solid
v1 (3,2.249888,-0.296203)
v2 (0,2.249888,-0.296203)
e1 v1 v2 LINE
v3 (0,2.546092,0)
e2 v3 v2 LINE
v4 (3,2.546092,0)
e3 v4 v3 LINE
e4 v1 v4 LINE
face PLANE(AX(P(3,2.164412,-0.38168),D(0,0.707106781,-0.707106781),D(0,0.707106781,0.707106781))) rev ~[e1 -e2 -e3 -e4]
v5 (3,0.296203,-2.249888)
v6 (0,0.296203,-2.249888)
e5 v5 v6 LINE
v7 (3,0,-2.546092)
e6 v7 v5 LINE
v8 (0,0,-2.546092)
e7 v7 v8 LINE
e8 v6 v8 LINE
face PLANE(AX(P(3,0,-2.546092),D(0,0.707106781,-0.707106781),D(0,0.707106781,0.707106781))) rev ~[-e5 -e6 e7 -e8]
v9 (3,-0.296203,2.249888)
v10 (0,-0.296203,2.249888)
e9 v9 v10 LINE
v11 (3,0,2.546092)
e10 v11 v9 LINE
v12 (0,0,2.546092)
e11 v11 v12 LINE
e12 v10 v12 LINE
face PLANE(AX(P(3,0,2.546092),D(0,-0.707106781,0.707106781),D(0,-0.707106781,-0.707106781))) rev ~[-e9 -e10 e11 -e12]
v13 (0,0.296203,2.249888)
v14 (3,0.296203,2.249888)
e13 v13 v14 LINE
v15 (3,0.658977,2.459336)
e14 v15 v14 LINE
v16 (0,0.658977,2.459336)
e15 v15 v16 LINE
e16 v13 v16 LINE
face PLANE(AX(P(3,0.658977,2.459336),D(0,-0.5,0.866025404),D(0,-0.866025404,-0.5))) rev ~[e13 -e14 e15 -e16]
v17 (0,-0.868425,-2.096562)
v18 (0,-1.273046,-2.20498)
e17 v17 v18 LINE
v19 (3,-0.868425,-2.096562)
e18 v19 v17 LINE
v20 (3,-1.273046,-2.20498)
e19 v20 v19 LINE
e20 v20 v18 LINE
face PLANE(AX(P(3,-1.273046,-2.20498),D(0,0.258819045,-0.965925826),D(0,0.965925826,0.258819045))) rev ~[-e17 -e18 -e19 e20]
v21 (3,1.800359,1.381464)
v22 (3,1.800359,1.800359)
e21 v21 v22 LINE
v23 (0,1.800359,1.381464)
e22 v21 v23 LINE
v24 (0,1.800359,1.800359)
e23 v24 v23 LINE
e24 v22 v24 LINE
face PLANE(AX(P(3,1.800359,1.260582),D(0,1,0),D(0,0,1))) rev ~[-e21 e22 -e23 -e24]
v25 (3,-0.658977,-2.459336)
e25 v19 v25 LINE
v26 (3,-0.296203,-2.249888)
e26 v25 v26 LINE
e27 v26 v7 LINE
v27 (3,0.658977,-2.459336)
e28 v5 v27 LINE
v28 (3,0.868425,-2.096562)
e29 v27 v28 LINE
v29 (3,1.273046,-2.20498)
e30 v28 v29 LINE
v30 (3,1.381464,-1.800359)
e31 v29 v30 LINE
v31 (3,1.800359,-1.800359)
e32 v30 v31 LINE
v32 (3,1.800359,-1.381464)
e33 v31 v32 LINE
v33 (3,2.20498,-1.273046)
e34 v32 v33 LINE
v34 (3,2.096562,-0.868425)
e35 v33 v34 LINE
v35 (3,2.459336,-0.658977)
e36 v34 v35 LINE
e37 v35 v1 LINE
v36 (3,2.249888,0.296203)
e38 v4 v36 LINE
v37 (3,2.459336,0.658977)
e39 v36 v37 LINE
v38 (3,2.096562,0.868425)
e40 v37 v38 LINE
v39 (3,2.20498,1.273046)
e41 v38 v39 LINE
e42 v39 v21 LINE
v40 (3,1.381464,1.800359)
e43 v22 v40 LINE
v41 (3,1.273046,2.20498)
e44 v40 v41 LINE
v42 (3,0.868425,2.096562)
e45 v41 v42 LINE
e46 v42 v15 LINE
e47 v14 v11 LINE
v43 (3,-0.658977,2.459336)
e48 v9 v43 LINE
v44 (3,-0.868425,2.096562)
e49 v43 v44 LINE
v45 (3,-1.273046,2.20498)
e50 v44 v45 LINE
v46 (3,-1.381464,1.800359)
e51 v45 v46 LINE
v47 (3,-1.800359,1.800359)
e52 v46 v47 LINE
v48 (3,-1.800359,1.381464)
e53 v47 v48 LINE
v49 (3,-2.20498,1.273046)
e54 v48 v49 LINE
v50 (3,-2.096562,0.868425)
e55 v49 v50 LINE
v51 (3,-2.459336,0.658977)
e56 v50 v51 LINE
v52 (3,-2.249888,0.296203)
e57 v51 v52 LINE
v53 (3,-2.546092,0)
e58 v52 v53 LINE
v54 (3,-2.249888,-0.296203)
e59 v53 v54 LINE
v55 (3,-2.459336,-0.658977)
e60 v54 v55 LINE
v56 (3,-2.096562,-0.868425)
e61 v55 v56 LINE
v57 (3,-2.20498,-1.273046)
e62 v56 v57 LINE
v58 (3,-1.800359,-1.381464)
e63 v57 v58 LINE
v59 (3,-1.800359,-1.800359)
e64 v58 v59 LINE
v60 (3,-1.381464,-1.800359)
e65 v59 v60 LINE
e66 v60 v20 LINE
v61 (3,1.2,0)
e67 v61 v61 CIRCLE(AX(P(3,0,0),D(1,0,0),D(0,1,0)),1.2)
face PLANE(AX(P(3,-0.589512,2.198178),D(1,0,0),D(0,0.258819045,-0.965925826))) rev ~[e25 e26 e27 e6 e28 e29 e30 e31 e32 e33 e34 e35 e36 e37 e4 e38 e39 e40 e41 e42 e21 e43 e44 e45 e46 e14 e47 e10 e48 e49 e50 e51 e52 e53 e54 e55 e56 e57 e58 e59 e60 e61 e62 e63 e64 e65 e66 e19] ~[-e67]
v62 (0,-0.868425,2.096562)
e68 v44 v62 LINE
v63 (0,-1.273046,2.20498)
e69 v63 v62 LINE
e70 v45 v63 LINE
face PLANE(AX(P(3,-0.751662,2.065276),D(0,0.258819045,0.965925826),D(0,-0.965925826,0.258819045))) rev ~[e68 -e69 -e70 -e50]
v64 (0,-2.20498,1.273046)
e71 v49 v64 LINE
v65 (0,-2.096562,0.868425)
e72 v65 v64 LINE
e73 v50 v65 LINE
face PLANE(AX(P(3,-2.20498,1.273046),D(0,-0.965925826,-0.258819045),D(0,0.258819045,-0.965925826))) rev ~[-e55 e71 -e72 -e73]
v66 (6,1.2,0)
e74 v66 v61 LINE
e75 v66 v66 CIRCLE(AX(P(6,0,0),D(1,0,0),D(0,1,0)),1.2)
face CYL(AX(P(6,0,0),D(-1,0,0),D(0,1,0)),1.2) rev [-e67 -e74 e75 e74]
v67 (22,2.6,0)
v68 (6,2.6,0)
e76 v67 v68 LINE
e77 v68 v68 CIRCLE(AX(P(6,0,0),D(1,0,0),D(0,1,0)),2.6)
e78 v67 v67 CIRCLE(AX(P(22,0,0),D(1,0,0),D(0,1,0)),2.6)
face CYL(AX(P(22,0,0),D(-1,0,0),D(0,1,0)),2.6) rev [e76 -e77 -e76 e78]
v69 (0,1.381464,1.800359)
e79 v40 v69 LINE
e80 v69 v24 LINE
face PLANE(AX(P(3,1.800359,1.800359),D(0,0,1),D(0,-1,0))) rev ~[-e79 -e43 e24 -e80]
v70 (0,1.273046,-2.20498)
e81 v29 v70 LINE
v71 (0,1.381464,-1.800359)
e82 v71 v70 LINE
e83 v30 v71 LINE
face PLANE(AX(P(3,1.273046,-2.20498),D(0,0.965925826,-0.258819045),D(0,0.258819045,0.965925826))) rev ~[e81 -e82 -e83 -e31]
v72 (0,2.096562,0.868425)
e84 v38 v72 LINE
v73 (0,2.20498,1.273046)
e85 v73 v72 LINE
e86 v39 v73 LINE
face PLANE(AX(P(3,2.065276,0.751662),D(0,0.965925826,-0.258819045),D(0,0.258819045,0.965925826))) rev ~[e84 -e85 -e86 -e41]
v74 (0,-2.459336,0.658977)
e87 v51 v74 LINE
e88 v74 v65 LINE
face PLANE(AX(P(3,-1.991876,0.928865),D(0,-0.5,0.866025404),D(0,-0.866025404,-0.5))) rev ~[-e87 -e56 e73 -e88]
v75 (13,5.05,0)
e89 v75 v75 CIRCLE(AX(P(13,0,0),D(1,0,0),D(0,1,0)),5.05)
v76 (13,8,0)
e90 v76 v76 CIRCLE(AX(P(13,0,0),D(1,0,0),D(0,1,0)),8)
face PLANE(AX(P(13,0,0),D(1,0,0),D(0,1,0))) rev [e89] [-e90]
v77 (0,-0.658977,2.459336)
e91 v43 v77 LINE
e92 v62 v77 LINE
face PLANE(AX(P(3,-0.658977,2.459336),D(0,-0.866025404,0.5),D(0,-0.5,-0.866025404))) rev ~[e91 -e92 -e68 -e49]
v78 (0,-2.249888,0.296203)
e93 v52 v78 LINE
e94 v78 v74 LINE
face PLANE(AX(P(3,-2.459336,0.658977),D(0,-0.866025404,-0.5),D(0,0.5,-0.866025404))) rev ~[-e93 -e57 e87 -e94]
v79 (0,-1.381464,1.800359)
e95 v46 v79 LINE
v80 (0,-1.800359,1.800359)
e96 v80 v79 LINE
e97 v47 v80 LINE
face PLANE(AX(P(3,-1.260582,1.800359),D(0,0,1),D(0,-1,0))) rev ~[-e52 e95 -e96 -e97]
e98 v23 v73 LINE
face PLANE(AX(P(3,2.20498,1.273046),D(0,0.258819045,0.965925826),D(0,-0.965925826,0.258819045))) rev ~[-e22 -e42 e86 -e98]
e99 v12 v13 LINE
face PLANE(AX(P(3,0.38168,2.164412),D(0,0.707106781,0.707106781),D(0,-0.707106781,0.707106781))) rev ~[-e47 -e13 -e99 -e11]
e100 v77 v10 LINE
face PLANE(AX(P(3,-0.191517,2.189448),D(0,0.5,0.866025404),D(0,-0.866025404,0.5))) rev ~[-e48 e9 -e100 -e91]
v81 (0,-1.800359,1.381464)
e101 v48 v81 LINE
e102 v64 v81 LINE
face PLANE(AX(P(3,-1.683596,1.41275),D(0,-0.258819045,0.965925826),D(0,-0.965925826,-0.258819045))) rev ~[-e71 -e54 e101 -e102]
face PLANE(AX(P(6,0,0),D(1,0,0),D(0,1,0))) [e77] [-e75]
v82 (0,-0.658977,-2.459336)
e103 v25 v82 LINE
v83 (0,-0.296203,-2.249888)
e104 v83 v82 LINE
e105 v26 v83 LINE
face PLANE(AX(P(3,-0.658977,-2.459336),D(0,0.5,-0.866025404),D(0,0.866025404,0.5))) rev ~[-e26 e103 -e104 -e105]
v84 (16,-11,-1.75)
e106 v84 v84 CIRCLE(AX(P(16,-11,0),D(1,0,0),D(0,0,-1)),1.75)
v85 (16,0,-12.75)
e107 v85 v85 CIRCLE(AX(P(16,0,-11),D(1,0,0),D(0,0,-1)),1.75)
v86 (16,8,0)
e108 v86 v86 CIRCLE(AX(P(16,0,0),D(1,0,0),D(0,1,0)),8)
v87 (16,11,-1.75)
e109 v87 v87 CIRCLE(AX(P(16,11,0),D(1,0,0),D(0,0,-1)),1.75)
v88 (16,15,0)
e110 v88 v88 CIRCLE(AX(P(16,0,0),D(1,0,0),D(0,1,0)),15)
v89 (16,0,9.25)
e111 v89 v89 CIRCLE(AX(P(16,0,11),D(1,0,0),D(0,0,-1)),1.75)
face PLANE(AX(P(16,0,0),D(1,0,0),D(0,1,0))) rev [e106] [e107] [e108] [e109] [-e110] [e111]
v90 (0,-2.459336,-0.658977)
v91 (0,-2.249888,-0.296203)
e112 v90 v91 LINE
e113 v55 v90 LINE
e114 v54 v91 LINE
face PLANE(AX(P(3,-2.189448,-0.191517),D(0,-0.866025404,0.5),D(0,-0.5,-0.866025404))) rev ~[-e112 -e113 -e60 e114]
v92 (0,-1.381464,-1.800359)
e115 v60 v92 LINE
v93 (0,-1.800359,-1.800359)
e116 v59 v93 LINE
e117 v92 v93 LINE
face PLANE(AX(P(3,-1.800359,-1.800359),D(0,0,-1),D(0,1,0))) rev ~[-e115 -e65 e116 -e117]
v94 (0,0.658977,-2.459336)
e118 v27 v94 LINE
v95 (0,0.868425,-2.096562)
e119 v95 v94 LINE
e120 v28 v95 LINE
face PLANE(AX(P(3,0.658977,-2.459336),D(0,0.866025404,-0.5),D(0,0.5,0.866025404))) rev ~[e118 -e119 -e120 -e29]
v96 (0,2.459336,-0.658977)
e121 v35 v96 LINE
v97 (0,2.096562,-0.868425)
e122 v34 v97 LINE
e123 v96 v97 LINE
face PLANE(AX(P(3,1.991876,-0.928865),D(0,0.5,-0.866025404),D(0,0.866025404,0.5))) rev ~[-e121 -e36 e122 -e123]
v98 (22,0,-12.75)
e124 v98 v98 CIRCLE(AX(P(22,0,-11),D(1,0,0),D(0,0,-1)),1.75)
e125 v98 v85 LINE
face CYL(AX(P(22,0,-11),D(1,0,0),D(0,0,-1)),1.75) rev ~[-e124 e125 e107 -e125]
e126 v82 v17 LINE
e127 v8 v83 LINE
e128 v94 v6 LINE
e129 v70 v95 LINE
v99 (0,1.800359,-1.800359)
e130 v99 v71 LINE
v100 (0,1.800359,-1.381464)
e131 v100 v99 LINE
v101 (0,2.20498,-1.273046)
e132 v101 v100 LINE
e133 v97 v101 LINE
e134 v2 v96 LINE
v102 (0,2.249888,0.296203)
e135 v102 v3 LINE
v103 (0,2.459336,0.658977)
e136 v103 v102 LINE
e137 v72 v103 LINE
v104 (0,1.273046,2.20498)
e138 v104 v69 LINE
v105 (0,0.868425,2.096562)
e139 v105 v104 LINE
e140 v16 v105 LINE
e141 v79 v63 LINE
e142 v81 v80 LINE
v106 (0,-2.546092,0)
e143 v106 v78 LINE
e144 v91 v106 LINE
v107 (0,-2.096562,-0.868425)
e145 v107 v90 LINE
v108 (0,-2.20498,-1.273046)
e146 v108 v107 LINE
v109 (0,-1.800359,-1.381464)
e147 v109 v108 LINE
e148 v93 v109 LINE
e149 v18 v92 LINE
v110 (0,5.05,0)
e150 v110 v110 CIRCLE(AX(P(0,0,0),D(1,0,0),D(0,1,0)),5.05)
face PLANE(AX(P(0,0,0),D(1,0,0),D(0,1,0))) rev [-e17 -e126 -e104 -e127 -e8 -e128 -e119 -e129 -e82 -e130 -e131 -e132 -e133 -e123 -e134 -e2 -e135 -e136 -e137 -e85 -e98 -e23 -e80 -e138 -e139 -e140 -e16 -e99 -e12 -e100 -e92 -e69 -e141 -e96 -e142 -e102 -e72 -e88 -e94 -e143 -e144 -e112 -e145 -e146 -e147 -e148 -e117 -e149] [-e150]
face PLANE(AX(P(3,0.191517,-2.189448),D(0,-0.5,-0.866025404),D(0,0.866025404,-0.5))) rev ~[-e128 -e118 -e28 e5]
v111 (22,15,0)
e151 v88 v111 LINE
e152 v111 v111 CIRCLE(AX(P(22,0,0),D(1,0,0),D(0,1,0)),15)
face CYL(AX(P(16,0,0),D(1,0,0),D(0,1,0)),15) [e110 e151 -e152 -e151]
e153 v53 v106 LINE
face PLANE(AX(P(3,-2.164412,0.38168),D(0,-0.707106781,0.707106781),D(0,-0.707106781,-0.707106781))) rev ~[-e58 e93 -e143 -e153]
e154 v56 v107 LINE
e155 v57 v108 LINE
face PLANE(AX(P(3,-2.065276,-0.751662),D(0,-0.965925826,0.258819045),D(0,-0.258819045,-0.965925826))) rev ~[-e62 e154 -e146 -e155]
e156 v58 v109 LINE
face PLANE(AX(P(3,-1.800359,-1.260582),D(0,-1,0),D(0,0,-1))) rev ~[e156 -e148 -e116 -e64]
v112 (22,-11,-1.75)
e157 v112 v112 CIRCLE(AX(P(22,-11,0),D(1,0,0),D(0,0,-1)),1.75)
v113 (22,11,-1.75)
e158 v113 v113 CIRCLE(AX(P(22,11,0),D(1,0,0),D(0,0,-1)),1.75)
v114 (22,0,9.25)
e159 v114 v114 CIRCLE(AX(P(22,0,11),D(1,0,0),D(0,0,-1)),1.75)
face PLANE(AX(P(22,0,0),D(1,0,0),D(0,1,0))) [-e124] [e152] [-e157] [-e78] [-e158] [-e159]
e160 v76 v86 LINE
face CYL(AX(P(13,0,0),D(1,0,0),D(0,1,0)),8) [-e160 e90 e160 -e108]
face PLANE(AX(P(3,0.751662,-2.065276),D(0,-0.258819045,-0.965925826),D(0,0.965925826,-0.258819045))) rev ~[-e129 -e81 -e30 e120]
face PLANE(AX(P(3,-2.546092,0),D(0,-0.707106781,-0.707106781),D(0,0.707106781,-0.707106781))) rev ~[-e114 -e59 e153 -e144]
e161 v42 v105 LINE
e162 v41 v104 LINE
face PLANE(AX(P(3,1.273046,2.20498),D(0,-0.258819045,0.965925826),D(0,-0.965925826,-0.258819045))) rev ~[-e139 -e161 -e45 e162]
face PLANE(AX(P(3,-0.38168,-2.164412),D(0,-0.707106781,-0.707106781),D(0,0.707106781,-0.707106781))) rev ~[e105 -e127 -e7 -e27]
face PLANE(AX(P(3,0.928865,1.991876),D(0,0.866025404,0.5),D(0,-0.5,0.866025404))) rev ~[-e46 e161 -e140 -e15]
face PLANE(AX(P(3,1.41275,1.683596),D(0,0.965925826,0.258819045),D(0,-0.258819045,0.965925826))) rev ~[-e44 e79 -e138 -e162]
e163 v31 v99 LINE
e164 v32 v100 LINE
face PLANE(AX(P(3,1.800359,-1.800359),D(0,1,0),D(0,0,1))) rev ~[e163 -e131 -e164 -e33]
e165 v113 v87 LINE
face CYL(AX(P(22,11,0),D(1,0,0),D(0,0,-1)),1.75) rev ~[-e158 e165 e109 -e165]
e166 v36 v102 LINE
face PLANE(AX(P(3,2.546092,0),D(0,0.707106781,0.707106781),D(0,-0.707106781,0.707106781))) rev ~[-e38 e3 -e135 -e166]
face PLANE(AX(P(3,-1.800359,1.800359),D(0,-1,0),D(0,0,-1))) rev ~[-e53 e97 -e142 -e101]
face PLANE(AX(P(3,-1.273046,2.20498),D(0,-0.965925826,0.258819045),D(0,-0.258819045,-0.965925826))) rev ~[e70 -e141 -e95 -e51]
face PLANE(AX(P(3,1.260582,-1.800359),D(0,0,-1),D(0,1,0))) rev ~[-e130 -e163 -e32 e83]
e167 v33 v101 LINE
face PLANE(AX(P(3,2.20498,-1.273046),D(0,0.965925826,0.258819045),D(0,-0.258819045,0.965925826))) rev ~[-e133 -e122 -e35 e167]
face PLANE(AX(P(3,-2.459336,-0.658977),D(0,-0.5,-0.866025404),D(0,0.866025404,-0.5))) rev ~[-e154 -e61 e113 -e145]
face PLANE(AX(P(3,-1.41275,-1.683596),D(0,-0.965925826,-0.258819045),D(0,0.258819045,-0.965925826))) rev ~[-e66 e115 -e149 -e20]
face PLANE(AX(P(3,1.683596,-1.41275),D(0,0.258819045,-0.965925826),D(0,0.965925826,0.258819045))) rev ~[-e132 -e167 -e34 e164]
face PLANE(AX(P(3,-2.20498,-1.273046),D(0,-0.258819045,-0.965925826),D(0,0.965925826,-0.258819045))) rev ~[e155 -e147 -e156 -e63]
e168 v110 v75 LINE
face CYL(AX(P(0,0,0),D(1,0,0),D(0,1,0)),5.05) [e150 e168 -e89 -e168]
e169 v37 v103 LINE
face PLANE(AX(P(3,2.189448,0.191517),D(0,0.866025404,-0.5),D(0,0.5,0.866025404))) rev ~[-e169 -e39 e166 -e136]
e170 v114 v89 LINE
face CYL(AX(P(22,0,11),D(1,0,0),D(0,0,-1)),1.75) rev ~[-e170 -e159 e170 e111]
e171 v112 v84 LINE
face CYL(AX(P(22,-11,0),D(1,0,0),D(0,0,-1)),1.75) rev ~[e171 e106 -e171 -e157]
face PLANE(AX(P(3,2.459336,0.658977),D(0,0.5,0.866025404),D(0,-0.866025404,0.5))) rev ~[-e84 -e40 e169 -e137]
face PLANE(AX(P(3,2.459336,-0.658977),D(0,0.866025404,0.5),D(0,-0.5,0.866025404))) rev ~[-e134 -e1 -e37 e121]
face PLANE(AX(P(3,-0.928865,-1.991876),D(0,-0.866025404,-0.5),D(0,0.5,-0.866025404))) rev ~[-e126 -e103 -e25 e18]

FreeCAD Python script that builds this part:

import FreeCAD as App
import Part
import Sketcher
from FreeCAD import Vector
Q = App.Units.Quantity

doc = App.newDocument("Part")
body = doc.addObject("PartDesign::Body", "Body")

sketch1 = doc.addObject("Sketcher::SketchObject", "Sketch")
body.addObject(sketch1)
sketch1.AttachmentSupport = (doc.XY_Plane, [""])
sketch1.MapMode = "FlatFace"
sketch1.addGeometry([
    Part.LineSegment(Vector(0, 5, 0), Vector(0, 2.2, 0)),
    Part.LineSegment(Vector(0, 2.2, 0), Vector(3, 2.2, 0)),
    Part.LineSegment(Vector(3, 2.2, 0), Vector(3, 1.2, 0)),
    Part.LineSegment(Vector(3, 1.2, 0), Vector(6, 1.2, 0)),
    Part.LineSegment(Vector(6, 1.2, 0), Vector(6, 2.6, 0)),
    Part.LineSegment(Vector(6, 2.6, 0), Vector(22, 2.6, 0)),
    Part.LineSegment(Vector(22, 2.6, 0), Vector(22, 15, 0)),
    Part.LineSegment(Vector(22, 15, 0), Vector(16, 15, 0)),
    Part.LineSegment(Vector(16, 15, 0), Vector(16, 8, 0)),
    Part.LineSegment(Vector(16, 8, 0), Vector(13, 8, 0)),
    Part.LineSegment(Vector(13, 8, 0), Vector(13, 5, 0)),
    Part.LineSegment(Vector(13, 5, 0), Vector(0, 5, 0)),
], False)
sketch1.addConstraint([
    Sketcher.Constraint("Coincident", 0, 2, 1, 1),
    Sketcher.Constraint("Coincident", 1, 2, 2, 1),
    Sketcher.Constraint("Coincident", 2, 2, 3, 1),
    Sketcher.Constraint("Coincident", 3, 2, 4, 1),
    Sketcher.Constraint("Coincident", 4, 2, 5, 1),
    Sketcher.Constraint("Coincident", 5, 2, 6, 1),
    Sketcher.Constraint("Coincident", 6, 2, 7, 1),
    Sketcher.Constraint("Coincident", 7, 2, 8, 1),
    Sketcher.Constraint("Coincident", 8, 2, 9, 1),
    Sketcher.Constraint("Coincident", 9, 2, 10, 1),
    Sketcher.Constraint("Coincident", 10, 2, 11, 1),
    Sketcher.Constraint("Coincident", 11, 2, 0, 1),
    Sketcher.Constraint("Vertical", 0),
    Sketcher.Constraint("Horizontal", 1),
    Sketcher.Constraint("Vertical", 2),
    Sketcher.Constraint("Horizontal", 3),
    Sketcher.Constraint("Vertical", 4),
    Sketcher.Constraint("Horizontal", 5),
    Sketcher.Constraint("Vertical", 6),
    Sketcher.Constraint("Horizontal", 7),
    Sketcher.Constraint("Vertical", 8),
    Sketcher.Constraint("Horizontal", 9),
    Sketcher.Constraint("Vertical", 10),
    Sketcher.Constraint("Horizontal", 11),
    Sketcher.Constraint("PointOnObject", 0, 2, -2),
    Sketcher.Constraint("Equal", 1, 3),
    Sketcher.Constraint("Equal", 3, 9),
    Sketcher.Constraint("DistanceX", 1, 1, 1, 2, 3.0),
    Sketcher.Constraint("DistanceX", 5, 1, 5, 2, 16.0),
    Sketcher.Constraint("DistanceX", 7, 2, 7, 1, 6.0),
    Sketcher.Constraint("DistanceY", 8, 2, 8, 1, 7.0),
    Sketcher.Constraint("DistanceY", 0, 2, 0, 1, 2.8),
    Sketcher.Constraint("DistanceY", 4, 1, 4, 2, 1.4),
    Sketcher.Constraint("DistanceY", 6, 1, 6, 2, 12.4),
    Sketcher.Constraint("DistanceY", -1, 1, 6, 2, 15.0),
    Sketcher.Constraint("DistanceY", 2, 2, 2, 1, 1.05),
])
revolution = doc.addObject("PartDesign::Revolution", "Revolution")
body.addObject(revolution)
revolution.Profile = sketch1
revolution.ReferenceAxis = (sketch1, ["H_Axis"])
revolution.Angle = 360

sketch2 = doc.addObject("Sketcher::SketchObject", "Sketch001")
body.addObject(sketch2)
sketch2.AttachmentSupport = (doc.YZ_Plane, [""])
sketch2.MapMode = "FlatFace"
sketch2.AttachmentOffset = App.Placement(Vector(0, 0, 22), App.Rotation())
sketch2.addGeometry(Part.Circle(Vector(11, 0, 0), Vector(0, 0, 1), 1.8), False)
sketch2.addConstraint([
    Sketcher.Constraint("PointOnObject", 0, 3, -1),
    Sketcher.Constraint("Diameter", 0, 3.5),
    Sketcher.Constraint("DistanceX", -1, 1, 0, 3, 11.0),
])
pocket1 = doc.addObject("PartDesign::Pocket", "Pocket")
body.addObject(pocket1)
pocket1.Profile = sketch2
pocket1.Type = "UpToFirst"

sketch3 = doc.addObject("Sketcher::SketchObject", "Sketch002")
body.addObject(sketch3)
sketch3.AttachmentSupport = (doc.YZ_Plane, [""])
sketch3.MapMode = "FlatFace"
sketch3.AttachmentOffset = App.Placement(Vector(0, 0, 22), App.Rotation())
sketch3.addGeometry(Part.Circle(Vector(0, -11, 0), Vector(0, 0, 1), 1.8), False)
sketch3.addConstraint([
    Sketcher.Constraint("PointOnObject", 0, 3, -2),
    Sketcher.Constraint("Diameter", 0, 3.5),
    Sketcher.Constraint("DistanceY", 0, 3, -1, 1, 11.0),
])
pocket2 = doc.addObject("PartDesign::Pocket", "Pocket001")
body.addObject(pocket2)
pocket2.Profile = sketch3
pocket2.Type = "UpToFirst"

sketch4 = doc.addObject("Sketcher::SketchObject", "Sketch003")
body.addObject(sketch4)
sketch4.AttachmentSupport = (doc.YZ_Plane, [""])
sketch4.MapMode = "FlatFace"
sketch4.AttachmentOffset = App.Placement(Vector(0, 0, 22), App.Rotation())
sketch4.addGeometry(Part.Circle(Vector(-11, 0, 0), Vector(0, 0, 1), 1.8), False)
sketch4.addConstraint([
    Sketcher.Constraint("PointOnObject", 0, 3, -1),
    Sketcher.Constraint("Diameter", 0, 3.5),
    Sketcher.Constraint("DistanceX", 0, 3, -1, 1, 11.0),
])
pocket3 = doc.addObject("PartDesign::Pocket", "Pocket002")
body.addObject(pocket3)
pocket3.Profile = sketch4
pocket3.Type = "UpToFirst"

sketch5 = doc.addObject("Sketcher::SketchObject", "Sketch004")
body.addObject(sketch5)
sketch5.AttachmentSupport = (doc.YZ_Plane, [""])
sketch5.MapMode = "FlatFace"
sketch5.AttachmentOffset = App.Placement(Vector(0, 0, 22), App.Rotation())
sketch5.addGeometry(Part.Circle(Vector(0, 11, 0), Vector(0, 0, 1), 1.8), False)
sketch5.addConstraint([
    Sketcher.Constraint("PointOnObject", 0, 3, -2),
    Sketcher.Constraint("Diameter", 0, 3.5),
    Sketcher.Constraint("DistanceY", -1, 1, 0, 3, 11.0),
])
pocket4 = doc.addObject("PartDesign::Pocket", "Pocket003")
body.addObject(pocket4)
pocket4.Profile = sketch5
pocket4.Type = "UpToFirst"

sketch6 = doc.addObject("Sketcher::SketchObject", "Sketch005")
body.addObject(sketch6)
sketch6.AttachmentSupport = (doc.YZ_Plane, [""])
sketch6.MapMode = "FlatFace"
sketch6.AttachmentOffset = App.Placement(Vector(0, 0, 3), App.Rotation())
sketch6.addGeometry([
    Part.LineSegment(Vector(-0.4, 2.2, 0), Vector(0, 2.5, 0)),
    Part.LineSegment(Vector(0, 2.5, 0), Vector(0.4, 2.2, 0)),
    Part.LineSegment(Vector(0.4, 2.2, 0), Vector(-0.4, 2.2, 0)),
], False)
sketch6.addConstraint([
    Sketcher.Constraint("Coincident", 0, 2, 1, 1),
    Sketcher.Constraint("Coincident", 1, 2, 2, 1),
    Sketcher.Constraint("Coincident", 2, 2, 0, 1),
    Sketcher.Constraint("PointOnObject", 0, 2, -2),
    Sketcher.Constraint("Perpendicular", 0, 1),
    Sketcher.Constraint("Angle", 0, Q("45 deg")),
    Sketcher.Constraint("Distance", 2, 0.764348),
    Sketcher.Constraint("DistanceY", -1, 1, 0, 2, 2.546092),
    Sketcher.Constraint("DistanceX", -1, 1, 1, 2, 0.38168),
])
pocket5 = doc.addObject("PartDesign::Pocket", "Pocket004")
body.addObject(pocket5)
pocket5.Profile = sketch6
pocket5.Length = 10
doc.recompute()

polarpattern = doc.addObject("PartDesign::PolarPattern", "PolarPattern")
body.addObject(polarpattern)
polarpattern.Originals = [pocket5]
polarpattern.Axis = (doc.X_Axis, [""])
polarpattern.Angle = 360
polarpattern.Occurrences = 24
body.Tip = polarpattern

doc.recompute()
